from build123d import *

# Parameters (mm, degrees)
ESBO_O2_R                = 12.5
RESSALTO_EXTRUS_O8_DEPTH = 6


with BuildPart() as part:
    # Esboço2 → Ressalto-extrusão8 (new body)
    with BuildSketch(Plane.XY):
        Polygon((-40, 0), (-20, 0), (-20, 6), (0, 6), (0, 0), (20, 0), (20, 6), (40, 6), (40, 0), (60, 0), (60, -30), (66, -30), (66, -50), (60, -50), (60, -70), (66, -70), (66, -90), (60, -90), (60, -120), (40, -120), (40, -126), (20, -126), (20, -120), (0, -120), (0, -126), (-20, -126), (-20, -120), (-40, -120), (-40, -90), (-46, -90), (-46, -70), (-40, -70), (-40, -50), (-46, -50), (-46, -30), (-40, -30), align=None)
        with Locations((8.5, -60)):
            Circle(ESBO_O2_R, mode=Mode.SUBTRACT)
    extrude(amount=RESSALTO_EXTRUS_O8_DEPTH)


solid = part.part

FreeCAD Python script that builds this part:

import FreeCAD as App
import Part
import Sketcher


def add_polygon(sketch, points):
    """Adds a closed chain of lines whose ends are joined by coincident constraints."""
    first, n = sketch.GeometryCount, len(points)
    for a, b in zip(points, points[1:] + points[:1]):
        sketch.addGeometry(Part.LineSegment(App.Vector(*a, 0), App.Vector(*b, 0)), False)
    for i in range(n):
        sketch.addConstraint(Sketcher.Constraint("Coincident", first + i, 2, first + (i + 1) % n, 1))

doc = App.newDocument("Part")
body = doc.addObject("PartDesign::Body", "Body")

sketch1 = body.newObject("Sketcher::SketchObject", "Sketch")
sketch1.AttachmentSupport = (doc.getObject("XY_Plane"), [""])
sketch1.MapMode = "FlatFace"
add_polygon(sketch1, [(-20, 0), (-40, 0), (-40, -30), (-46, -30), (-46, -50), (-40, -50), (-40, -70), (-46, -70), (-46, -90), (-40, -90), (-40, -120), (-20, -120), (-20, -126), (0, -126), (0, -120), (20, -120), (20, -126), (40, -126), (40, -120), (60, -120), (60, -90), (66, -90), (66, -70), (60, -70), (60, -50), (66, -50), (66, -30), (60, -30), (60, 0), (40, 0), (40, 6), (20, 6), (20, 0), (0, 0), (0, 6), (-20, 6)])
sketch1.addGeometry(Part.Circle(App.Vector(8.5, -60, 0), App.Vector(0, 0, 1), 12.5), False)
sketch1.addConstraint(Sketcher.Constraint("Horizontal", 0))
sketch1.addConstraint(Sketcher.Constraint("Vertical", 1))
sketch1.addConstraint(Sketcher.Constraint("Horizontal", 2))
sketch1.addConstraint(Sketcher.Constraint("Vertical", 3))
sketch1.addConstraint(Sketcher.Constraint("Horizontal", 4))
sketch1.addConstraint(Sketcher.Constraint("Vertical", 5))
sketch1.addConstraint(Sketcher.Constraint("Horizontal", 6))
sketch1.addConstraint(Sketcher.Constraint("Vertical", 7))
sketch1.addConstraint(Sketcher.Constraint("Horizontal", 8))
sketch1.addConstraint(Sketcher.Constraint("Vertical", 9))
sketch1.addConstraint(Sketcher.Constraint("Horizontal", 10))
sketch1.addConstraint(Sketcher.Constraint("Vertical", 11))
sketch1.addConstraint(Sketcher.Constraint("Horizontal", 12))
sketch1.addConstraint(Sketcher.Constraint("Vertical", 13))
sketch1.addConstraint(Sketcher.Constraint("Horizontal", 14))
sketch1.addConstraint(Sketcher.Constraint("Vertical", 15))
sketch1.addConstraint(Sketcher.Constraint("Horizontal", 16))
sketch1.addConstraint(Sketcher.Constraint("Vertical", 17))
sketch1.addConstraint(Sketcher.Constraint("Horizontal", 18))
sketch1.addConstraint(Sketcher.Constraint("Vertical", 19))
sketch1.addConstraint(Sketcher.Constraint("Horizontal", 20))
sketch1.addConstraint(Sketcher.Constraint("Vertical", 21))
sketch1.addConstraint(Sketcher.Constraint("Horizontal", 22))
sketch1.addConstraint(Sketcher.Constraint("Vertical", 23))
sketch1.addConstraint(Sketcher.Constraint("Horizontal", 24))
sketch1.addConstraint(Sketcher.Constraint("Vertical", 25))
sketch1.addConstraint(Sketcher.Constraint("Horizontal", 26))
sketch1.addConstraint(Sketcher.Constraint("Vertical", 27))
sketch1.addConstraint(Sketcher.Constraint("Horizontal", 28))
sketch1.addConstraint(Sketcher.Constraint("Vertical", 29))
sketch1.addConstraint(Sketcher.Constraint("Horizontal", 30))
sketch1.addConstraint(Sketcher.Constraint("Vertical", 31))
sketch1.addConstraint(Sketcher.Constraint("Horizontal", 32))
sketch1.addConstraint(Sketcher.Constraint("Vertical", 33))
sketch1.addConstraint(Sketcher.Constraint("Horizontal", 34))
sketch1.addConstraint(Sketcher.Constraint("Vertical", 35))
sketch1.addConstraint(Sketcher.Constraint("Coincident", 32, 2, -1, 1))
sketch1.addConstraint(Sketcher.Constraint("Symmetric", 0, 2, 28, 2, -1, 1))
sketch1.addConstraint(Sketcher.Constraint("Symmetric", 31, 2, 35, 2, -1, 1))
sketch1.addConstraint(Sketcher.Constraint("Symmetric", 10, 2, 14, 2, -2))
sketch1.addConstraint(Sketcher.Constraint("Symmetric", 9, 2, 17, 2, -2))
sketch1.addConstraint(Sketcher.Constraint("PointOnObject", 12, 2, -2))
sketch1.addConstraint(Sketcher.Constraint("Horizontal", 12, 2, 15, 2))
sketch1.addConstraint(Sketcher.Constraint("Horizontal", 8, 2, 19, 2))
sketch1.addConstraint(Sketcher.Constraint("Horizontal", 6, 2, 21, 2))
sketch1.addConstraint(Sketcher.Constraint("Horizontal", 4, 2, 23, 2))
sketch1.addConstraint(Sketcher.Constraint("Horizontal", 2, 2, 25, 2))
sketch1.addConstraint(Sketcher.Constraint("Horizontal", 30, 2, 33, 2))
sketch1.addConstraint(Sketcher.Constraint("Vertical", 1, 2, 4, 2))
sketch1.addConstraint(Sketcher.Constraint("Vertical", 3, 2, 6, 2))
sketch1.addConstraint(Sketcher.Constraint("Vertical", 5, 2, 8, 2))
sketch1.addConstraint(Sketcher.Constraint("Vertical", 19, 2, 22, 2))
sketch1.addConstraint(Sketcher.Constraint("Vertical", 21, 2, 24, 2))
sketch1.addConstraint(Sketcher.Constraint("Vertical", 23, 2, 26, 2))
sketch1.addConstraint(Sketcher.Constraint("Vertical", 15, 2, 30, 2))
sketch1.addConstraint(Sketcher.Constraint("Equal", 10, 12))
sketch1.addConstraint(Sketcher.Constraint("Equal", 16, 18))
sketch1.addConstraint(Sketcher.Constraint("Equal", 8, 20))
sketch1.addConstraint(Sketcher.Constraint("Equal", 34, 3))
sketch1.addConstraint(Sketcher.Constraint("Equal", 3, 5))
sketch1.addConstraint(Sketcher.Constraint("Equal", 5, 7))
sketch1.addConstraint(Sketcher.Constraint("Equal", 1, 9))
sketch1.addConstraint(Sketcher.Constraint("Equal", 26, 11))
sketch1.addConstraint(Sketcher.Constraint("Equal", 17, 29))
sketch1.addConstraint(Sketcher.Constraint("Diameter", 36, 25.0))
sketch1.addConstraint(Sketcher.Constraint("DistanceX", 0, 2, 0, 1, 20.0))
sketch1.addConstraint(Sketcher.Constraint("DistanceX", 2, 2, 2, 1, 6.0))
sketch1.addConstraint(Sketcher.Constraint("DistanceY", 1, 2, 1, 1, 30.0))
sketch1.addConstraint(Sketcher.Constraint("DistanceY", 36, 3, -1, 1, 60.0))
sketch1.addConstraint(Sketcher.Constraint("DistanceX", -1, 1, 36, 3, 8.5))
pad1 = body.newObject("PartDesign::Pad", "Pad")
pad1.Profile = sketch1
pad1.Length = 6

doc.recompute()
